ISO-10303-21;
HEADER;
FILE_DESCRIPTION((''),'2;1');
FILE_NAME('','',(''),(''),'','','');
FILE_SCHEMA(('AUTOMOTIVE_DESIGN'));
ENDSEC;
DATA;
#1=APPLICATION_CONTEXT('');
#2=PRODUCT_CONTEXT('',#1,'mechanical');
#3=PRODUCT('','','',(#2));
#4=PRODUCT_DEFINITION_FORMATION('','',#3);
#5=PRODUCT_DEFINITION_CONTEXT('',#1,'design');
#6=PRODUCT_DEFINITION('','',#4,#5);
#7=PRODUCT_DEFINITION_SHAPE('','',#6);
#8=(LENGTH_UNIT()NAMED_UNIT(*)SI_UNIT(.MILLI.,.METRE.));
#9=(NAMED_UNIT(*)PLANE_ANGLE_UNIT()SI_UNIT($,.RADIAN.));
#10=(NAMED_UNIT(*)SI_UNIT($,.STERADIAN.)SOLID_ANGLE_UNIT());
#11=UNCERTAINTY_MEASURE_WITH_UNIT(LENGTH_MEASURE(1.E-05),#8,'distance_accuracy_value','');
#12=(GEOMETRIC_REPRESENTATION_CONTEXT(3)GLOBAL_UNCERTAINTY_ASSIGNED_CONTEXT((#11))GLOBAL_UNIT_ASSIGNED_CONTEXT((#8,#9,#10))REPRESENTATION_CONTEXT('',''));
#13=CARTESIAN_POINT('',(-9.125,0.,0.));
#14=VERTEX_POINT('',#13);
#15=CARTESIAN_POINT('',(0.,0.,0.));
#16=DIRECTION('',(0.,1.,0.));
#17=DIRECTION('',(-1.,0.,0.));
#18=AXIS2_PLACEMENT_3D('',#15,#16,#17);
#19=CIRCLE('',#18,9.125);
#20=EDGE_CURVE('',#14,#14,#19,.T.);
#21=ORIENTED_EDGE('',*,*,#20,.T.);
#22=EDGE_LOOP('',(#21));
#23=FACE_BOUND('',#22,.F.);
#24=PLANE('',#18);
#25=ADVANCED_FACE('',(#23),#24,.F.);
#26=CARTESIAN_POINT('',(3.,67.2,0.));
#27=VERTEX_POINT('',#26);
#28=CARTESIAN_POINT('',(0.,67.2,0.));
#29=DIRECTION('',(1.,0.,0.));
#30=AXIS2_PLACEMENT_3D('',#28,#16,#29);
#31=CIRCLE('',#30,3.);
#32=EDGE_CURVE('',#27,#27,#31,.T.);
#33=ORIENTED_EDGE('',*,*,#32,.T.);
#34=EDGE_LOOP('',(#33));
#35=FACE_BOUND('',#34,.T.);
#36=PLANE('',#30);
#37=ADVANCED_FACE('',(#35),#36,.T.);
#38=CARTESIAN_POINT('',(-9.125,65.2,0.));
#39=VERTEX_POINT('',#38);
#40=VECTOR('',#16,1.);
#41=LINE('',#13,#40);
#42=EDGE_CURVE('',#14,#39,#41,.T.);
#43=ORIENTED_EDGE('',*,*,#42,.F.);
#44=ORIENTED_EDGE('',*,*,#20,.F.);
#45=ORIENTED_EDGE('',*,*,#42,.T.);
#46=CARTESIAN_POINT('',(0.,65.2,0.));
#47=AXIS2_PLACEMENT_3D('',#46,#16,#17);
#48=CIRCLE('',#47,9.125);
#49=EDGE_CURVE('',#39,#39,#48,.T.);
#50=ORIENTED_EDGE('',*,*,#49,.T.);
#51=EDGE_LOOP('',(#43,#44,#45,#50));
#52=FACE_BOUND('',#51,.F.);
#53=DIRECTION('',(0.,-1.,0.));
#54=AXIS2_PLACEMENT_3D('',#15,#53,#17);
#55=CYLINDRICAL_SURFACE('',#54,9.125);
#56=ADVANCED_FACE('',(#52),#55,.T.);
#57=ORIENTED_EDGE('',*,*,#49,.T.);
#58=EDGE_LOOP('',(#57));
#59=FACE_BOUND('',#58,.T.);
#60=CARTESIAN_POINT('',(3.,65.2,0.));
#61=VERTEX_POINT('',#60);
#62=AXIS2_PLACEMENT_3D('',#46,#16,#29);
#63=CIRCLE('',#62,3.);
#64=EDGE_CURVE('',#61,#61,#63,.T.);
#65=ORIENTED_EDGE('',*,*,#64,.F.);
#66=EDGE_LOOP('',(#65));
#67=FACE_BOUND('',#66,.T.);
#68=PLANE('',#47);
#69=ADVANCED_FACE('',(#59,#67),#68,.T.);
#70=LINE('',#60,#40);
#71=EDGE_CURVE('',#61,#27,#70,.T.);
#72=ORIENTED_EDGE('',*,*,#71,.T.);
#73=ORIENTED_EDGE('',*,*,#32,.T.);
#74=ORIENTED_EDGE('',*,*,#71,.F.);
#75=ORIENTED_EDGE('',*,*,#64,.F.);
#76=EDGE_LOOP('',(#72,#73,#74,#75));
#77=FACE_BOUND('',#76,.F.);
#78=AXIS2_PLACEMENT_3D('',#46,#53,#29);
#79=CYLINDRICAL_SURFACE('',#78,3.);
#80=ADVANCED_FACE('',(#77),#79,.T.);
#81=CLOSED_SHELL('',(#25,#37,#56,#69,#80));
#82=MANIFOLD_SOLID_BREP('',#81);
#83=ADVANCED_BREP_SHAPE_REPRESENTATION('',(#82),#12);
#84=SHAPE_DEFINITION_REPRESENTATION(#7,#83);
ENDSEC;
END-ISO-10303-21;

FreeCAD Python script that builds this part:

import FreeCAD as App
import Part
import Sketcher

V = App.Vector

doc = App.newDocument("Part")
body = doc.addObject("PartDesign::Body", "Body")

# Sketch on XZ plane
sketch1 = doc.addObject("Sketcher::SketchObject", "Sketch")
body.addObject(sketch1)
sketch1.AttachmentSupport = (doc.XZ_Plane, [""])
sketch1.MapMode = "FlatFace"
sketch1.addGeometry(Part.Circle(V(0, 0, 0), V(0, 0, 1), 9), False)
sketch1.addConstraint([
    Sketcher.Constraint("Coincident", 0, 3, -1, 1),
    Sketcher.Constraint("Diameter", 0, 18.25),
])
pad1 = doc.addObject("PartDesign::Pad", "Pad")
body.addObject(pad1)
pad1.Profile = sketch1
pad1.Length = 65.2
pad1.Reversed = True

# Sketch on XZ plane
sketch2 = doc.addObject("Sketcher::SketchObject", "Sketch001")
body.addObject(sketch2)
sketch2.AttachmentSupport = (doc.XZ_Plane, [""])
sketch2.MapMode = "FlatFace"
sketch2.AttachmentOffset = App.Placement(V(0, 0, -65.2), App.Rotation())
sketch2.addGeometry(Part.Circle(V(0, 0, 0), V(0, 0, 1), 3), False)
sketch2.addConstraint([
    Sketcher.Constraint("Coincident", 0, 3, -1, 1),
    Sketcher.Constraint("Diameter", 0, 6.0),
])
pad2 = doc.addObject("PartDesign::Pad", "Pad001")
body.addObject(pad2)
pad2.Profile = sketch2
pad2.Length = 2
pad2.Reversed = True

doc.recompute()
